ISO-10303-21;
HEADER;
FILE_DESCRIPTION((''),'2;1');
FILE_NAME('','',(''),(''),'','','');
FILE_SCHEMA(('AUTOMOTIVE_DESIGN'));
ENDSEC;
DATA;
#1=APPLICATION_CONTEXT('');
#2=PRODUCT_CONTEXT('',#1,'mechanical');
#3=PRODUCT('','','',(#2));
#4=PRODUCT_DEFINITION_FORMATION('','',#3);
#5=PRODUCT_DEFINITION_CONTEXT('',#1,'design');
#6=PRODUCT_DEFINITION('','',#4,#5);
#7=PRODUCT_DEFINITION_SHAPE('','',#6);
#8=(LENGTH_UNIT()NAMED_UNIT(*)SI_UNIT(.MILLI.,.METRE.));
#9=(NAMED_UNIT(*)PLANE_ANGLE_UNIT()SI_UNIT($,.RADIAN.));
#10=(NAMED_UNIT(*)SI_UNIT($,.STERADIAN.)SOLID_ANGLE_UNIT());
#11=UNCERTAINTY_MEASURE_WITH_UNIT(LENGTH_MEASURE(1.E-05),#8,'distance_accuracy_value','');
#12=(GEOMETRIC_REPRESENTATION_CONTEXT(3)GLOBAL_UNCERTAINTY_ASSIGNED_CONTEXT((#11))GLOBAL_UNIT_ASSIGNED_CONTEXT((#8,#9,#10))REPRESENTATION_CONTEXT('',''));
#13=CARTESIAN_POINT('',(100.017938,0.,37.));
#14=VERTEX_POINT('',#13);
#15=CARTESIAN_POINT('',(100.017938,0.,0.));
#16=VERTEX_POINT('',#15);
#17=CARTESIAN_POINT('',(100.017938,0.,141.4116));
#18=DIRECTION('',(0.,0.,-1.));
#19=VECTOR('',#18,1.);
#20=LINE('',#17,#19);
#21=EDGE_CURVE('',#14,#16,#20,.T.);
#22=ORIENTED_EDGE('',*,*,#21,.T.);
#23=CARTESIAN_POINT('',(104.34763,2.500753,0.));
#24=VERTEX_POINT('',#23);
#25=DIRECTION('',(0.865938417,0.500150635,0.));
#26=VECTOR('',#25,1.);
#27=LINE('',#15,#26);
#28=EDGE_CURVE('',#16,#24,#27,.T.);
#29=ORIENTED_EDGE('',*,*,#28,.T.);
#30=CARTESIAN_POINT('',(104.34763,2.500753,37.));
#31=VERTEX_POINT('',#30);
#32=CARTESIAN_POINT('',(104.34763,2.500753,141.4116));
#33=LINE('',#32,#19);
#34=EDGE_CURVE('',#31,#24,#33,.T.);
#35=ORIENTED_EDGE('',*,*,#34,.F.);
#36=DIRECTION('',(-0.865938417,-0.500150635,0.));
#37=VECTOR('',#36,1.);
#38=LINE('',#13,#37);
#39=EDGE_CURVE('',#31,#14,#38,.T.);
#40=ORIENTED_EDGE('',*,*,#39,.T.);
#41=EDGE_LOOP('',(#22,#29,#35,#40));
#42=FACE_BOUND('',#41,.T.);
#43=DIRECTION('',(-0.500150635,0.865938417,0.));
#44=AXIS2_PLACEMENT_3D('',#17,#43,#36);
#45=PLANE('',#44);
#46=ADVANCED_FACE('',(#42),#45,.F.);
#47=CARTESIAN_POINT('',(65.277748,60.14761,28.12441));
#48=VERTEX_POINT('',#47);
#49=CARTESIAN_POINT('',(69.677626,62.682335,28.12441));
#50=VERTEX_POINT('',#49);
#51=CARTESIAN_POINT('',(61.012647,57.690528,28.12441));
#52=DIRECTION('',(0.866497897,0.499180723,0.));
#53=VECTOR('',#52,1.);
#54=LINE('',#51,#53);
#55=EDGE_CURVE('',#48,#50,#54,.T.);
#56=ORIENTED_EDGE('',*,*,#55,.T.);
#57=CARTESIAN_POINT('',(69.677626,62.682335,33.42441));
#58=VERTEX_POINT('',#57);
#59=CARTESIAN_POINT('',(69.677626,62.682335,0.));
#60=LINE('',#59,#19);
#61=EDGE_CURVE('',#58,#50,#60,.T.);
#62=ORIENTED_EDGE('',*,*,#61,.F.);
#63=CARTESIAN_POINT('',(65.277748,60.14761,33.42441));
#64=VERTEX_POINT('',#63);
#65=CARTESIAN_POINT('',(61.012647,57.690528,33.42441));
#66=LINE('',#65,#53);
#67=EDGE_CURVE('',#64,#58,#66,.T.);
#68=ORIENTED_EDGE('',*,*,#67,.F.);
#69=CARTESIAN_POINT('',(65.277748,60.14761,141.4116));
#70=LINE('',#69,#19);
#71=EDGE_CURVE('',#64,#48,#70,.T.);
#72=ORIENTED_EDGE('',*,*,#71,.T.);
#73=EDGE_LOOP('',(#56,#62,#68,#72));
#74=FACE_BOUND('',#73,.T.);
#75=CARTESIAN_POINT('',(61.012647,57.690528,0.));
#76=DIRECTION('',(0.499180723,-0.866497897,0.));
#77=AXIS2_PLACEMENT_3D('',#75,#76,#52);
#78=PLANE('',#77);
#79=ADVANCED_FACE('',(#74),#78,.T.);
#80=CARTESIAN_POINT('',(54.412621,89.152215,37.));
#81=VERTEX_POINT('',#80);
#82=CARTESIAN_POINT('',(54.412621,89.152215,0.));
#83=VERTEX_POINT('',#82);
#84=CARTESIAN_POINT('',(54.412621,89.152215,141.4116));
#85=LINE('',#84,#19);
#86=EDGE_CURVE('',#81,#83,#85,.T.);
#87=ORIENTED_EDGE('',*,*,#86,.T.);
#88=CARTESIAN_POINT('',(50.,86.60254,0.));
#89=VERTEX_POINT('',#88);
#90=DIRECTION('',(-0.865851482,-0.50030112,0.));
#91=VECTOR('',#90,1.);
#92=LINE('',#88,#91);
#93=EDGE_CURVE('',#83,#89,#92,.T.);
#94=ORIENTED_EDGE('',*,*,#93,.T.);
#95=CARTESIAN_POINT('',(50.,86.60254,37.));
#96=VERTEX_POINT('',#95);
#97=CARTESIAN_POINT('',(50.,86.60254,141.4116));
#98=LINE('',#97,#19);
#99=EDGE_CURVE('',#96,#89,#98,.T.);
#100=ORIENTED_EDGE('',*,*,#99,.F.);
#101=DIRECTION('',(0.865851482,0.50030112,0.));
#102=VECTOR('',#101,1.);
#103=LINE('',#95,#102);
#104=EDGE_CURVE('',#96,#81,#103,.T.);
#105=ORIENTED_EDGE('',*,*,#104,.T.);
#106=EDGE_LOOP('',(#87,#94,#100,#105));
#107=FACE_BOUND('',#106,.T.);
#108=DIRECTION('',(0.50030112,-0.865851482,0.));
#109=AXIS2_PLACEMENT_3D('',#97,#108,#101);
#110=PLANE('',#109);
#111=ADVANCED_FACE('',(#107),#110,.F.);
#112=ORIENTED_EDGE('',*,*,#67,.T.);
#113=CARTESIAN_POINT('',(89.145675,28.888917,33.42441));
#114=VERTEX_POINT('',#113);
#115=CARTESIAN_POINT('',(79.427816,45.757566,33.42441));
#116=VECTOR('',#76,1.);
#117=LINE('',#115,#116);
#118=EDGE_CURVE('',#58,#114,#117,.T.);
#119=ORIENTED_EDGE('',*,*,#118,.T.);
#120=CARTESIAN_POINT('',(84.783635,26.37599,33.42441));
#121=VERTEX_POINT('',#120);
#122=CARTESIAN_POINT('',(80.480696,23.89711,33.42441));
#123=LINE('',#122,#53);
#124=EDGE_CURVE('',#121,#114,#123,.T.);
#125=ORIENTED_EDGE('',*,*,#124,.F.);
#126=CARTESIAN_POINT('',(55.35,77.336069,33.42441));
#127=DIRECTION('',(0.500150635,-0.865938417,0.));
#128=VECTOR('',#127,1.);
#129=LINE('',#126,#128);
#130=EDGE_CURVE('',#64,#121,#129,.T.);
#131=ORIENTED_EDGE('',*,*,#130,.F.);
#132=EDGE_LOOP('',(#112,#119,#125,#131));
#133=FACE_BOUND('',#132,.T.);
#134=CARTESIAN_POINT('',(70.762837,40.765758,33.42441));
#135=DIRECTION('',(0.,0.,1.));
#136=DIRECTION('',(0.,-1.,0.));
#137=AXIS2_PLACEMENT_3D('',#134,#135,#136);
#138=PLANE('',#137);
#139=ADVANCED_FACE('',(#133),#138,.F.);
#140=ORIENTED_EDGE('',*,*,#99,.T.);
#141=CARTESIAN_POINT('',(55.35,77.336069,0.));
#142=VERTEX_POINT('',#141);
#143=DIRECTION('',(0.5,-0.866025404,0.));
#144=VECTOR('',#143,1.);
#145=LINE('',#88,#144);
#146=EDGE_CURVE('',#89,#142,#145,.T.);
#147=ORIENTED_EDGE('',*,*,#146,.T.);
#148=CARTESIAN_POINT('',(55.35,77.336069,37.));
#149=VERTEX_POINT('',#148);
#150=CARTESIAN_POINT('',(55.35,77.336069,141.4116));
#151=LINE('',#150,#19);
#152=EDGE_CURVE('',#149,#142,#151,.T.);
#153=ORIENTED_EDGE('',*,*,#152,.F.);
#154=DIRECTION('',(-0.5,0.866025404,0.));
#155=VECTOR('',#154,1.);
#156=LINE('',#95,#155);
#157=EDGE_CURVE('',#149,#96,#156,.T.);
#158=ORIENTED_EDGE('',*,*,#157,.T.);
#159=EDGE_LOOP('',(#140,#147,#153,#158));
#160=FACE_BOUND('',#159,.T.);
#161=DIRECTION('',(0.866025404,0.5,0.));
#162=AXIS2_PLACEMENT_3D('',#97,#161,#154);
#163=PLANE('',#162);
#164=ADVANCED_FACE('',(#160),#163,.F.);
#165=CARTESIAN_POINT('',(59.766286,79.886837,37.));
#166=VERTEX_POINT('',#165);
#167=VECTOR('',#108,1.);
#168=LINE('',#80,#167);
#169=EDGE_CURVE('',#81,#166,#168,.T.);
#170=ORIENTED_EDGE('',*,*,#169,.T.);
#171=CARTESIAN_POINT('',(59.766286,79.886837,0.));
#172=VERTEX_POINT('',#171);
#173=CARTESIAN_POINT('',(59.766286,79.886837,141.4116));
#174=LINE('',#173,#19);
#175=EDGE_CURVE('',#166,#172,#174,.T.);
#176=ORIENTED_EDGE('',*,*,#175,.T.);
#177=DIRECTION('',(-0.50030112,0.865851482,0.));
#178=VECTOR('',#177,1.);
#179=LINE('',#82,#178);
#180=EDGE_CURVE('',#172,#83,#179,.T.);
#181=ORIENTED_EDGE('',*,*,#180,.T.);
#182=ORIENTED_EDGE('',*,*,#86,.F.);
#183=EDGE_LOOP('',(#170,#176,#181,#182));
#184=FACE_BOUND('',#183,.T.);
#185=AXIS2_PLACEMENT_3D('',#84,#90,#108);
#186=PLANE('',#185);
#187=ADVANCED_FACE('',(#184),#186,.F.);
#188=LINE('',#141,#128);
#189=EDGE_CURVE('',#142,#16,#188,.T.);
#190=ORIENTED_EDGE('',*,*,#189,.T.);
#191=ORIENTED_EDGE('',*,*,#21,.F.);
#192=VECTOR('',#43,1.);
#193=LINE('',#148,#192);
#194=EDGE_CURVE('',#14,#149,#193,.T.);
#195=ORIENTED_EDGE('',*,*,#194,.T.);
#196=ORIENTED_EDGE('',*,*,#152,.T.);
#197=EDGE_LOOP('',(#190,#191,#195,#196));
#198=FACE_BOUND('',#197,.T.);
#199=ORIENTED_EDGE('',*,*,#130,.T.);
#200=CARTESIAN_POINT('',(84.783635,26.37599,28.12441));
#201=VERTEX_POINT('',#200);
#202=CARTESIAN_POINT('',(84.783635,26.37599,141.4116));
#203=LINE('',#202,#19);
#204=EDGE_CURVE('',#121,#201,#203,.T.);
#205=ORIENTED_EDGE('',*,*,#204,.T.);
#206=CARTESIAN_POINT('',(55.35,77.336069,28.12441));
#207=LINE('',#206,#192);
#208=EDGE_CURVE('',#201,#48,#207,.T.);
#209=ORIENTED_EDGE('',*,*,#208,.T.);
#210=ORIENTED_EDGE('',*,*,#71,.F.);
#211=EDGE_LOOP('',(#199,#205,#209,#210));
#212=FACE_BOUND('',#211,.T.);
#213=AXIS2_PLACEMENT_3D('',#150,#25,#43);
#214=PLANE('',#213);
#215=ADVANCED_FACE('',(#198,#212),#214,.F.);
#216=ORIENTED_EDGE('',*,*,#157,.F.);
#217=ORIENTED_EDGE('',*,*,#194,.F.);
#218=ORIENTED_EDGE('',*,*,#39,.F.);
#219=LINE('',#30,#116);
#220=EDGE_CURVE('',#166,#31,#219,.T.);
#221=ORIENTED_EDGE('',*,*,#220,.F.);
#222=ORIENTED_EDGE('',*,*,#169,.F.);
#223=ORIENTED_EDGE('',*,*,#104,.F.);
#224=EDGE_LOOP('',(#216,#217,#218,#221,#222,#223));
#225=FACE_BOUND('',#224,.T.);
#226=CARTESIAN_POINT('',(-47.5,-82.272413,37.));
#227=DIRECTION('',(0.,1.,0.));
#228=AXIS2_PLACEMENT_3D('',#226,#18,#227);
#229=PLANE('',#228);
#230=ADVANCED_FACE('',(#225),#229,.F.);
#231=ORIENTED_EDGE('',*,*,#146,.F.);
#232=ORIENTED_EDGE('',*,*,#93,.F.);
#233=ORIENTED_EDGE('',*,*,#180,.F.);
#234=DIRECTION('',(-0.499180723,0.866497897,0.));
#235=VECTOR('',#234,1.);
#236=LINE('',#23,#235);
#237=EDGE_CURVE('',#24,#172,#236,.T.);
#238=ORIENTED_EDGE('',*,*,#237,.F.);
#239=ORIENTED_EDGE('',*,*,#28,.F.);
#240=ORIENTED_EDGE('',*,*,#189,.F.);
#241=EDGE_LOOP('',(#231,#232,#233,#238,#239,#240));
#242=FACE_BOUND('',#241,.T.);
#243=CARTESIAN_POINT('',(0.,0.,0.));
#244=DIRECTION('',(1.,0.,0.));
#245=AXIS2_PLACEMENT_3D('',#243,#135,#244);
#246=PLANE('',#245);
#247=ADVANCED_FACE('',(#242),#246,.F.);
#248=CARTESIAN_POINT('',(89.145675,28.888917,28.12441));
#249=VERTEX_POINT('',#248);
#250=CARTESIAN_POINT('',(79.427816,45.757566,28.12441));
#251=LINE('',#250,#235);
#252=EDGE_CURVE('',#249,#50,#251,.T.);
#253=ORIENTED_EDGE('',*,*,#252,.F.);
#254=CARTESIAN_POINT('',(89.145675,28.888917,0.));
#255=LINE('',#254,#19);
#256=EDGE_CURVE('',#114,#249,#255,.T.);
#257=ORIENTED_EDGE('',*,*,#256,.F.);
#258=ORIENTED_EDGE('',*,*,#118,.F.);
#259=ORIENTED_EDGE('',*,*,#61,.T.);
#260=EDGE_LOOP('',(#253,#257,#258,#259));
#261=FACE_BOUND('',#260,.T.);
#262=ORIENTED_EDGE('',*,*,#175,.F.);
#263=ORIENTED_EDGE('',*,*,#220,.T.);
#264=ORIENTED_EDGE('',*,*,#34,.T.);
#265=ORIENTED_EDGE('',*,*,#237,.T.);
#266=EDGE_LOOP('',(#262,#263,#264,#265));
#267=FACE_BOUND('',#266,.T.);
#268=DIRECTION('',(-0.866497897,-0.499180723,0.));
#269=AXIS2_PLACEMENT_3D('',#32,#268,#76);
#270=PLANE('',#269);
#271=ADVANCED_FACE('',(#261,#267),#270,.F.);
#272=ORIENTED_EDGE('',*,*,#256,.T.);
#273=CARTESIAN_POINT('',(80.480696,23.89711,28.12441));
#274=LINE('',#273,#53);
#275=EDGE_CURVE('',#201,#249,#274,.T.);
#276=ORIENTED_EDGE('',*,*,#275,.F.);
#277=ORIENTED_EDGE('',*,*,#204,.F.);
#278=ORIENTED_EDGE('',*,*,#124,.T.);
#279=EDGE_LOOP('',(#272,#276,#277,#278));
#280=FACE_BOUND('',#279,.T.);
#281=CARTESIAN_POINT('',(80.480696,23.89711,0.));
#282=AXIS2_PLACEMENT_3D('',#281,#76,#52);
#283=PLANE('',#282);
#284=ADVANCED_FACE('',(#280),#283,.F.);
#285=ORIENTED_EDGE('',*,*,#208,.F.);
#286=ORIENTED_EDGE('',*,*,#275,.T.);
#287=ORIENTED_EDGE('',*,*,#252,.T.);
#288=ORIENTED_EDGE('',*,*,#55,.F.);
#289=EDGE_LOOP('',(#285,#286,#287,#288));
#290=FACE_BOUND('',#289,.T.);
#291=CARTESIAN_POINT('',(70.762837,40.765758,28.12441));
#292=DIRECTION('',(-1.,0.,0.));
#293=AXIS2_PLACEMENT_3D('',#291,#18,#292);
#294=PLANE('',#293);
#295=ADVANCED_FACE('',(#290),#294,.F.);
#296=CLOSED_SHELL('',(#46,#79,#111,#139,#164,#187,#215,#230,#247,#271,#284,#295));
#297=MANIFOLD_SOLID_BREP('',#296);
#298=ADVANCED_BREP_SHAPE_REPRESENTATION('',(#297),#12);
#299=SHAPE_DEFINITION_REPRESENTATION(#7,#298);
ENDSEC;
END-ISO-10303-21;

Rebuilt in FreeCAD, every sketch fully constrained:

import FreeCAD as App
import Part
import Sketcher
Q = App.Units.Quantity


def add_polygon(sketch, points):
    """Adds a closed chain of lines whose ends are joined by coincident constraints."""
    first, n = sketch.GeometryCount, len(points)
    for a, b in zip(points, points[1:] + points[:1]):
        sketch.addGeometry(Part.LineSegment(App.Vector(*a, 0), App.Vector(*b, 0)), False)
    for i in range(n):
        sketch.addConstraint(Sketcher.Constraint("Coincident", first + i, 2, first + (i + 1) % n, 1))

doc = App.newDocument("Part")
body = doc.addObject("PartDesign::Body", "Body")

# Sketch on XY plane
sketch1 = doc.addObject("Sketcher::SketchObject", "Sketch")
body.addObject(sketch1)
sketch1.AttachmentSupport = (doc.XY_Plane, [""])
sketch1.MapMode = "FlatFace"
add_polygon(sketch1, [(55.35, 77.336069), (100.017938, 0), (104.34763, 2.500753), (59.766286, 79.886837), (54.412621, 89.152215), (50, 86.60254)])  # lines 0-5
sketch1.addConstraint(Sketcher.Constraint("PointOnObject", 0, 2, -1))
sketch1.addConstraint(Sketcher.Constraint("Perpendicular", 0, 1))
sketch1.addConstraint(Sketcher.Constraint("Perpendicular", 3, 4))
sketch1.addConstraint(Sketcher.Constraint("Angle", 5, Q("-60 deg")))
sketch1.addConstraint(Sketcher.Constraint("Distance", 1, Q("5 mm")))
sketch1.addConstraint(Sketcher.Constraint("DistanceX", -1, 1, 4, 2, Q("50 mm")))
sketch1.addConstraint(Sketcher.Constraint("Distance", 5, Q("10.7 mm")))
sketch1.addConstraint(Sketcher.Constraint("Distance", 0, Q("89.30897 mm")))
sketch1.addConstraint(Sketcher.Constraint("Distance", 4, Q("5.096279 mm")))
sketch1.addConstraint(Sketcher.Constraint("DistanceX", -1, 1, 0, 2, Q("100.017938 mm")))
sketch1.addConstraint(Sketcher.Constraint("DistanceX", -1, 1, 3, 2, Q("54.412621 mm")))
sketch1.addConstraint(Sketcher.Constraint("DistanceY", 5, 2, 2, 2, Q("2.550768 mm")))
pad1 = doc.addObject("PartDesign::Pad", "Pad")
body.addObject(pad1)
pad1.Profile = sketch1
pad1.Length = 37

# Sketch on an angled plane
sketch2 = doc.addObject("Sketcher::SketchObject", "Sketch001")
body.addObject(sketch2)
sketch2.Placement = App.Placement(App.Vector(79.427816, 45.757566, 0), App.Rotation(App.Vector(0, 0, -1), App.Vector(-0.499180723, 0.866497897, 0), App.Vector(0.866497897, 0.499180723, 0), "ZXY"))
add_polygon(sketch2, [(-33.42441, 19.532384), (-33.42441, -19.467616), (-28.12441, -19.467616), (-28.12441, 19.532384)])  # lines 0-3
sketch2.addConstraint(Sketcher.Constraint("Vertical", 0))
sketch2.addConstraint(Sketcher.Constraint("Horizontal", 1))
sketch2.addConstraint(Sketcher.Constraint("Vertical", 2))
sketch2.addConstraint(Sketcher.Constraint("Horizontal", 3))
sketch2.addConstraint(Sketcher.Constraint("DistanceY", 0, 2, 0, 1, Q("39 mm")))
sketch2.addConstraint(Sketcher.Constraint("DistanceX", 1, 1, 1, 2, Q("5.3 mm")))
sketch2.addConstraint(Sketcher.Constraint("DistanceX", 0, 2, -1, 1, Q("33.42441 mm")))
sketch2.addConstraint(Sketcher.Constraint("DistanceY", 0, 2, -1, 1, Q("19.467616 mm")))
pocket1 = doc.addObject("PartDesign::Pocket", "Pocket")
body.addObject(pocket1)
pocket1.Profile = sketch2
pocket1.Length = 10

doc.recompute()
